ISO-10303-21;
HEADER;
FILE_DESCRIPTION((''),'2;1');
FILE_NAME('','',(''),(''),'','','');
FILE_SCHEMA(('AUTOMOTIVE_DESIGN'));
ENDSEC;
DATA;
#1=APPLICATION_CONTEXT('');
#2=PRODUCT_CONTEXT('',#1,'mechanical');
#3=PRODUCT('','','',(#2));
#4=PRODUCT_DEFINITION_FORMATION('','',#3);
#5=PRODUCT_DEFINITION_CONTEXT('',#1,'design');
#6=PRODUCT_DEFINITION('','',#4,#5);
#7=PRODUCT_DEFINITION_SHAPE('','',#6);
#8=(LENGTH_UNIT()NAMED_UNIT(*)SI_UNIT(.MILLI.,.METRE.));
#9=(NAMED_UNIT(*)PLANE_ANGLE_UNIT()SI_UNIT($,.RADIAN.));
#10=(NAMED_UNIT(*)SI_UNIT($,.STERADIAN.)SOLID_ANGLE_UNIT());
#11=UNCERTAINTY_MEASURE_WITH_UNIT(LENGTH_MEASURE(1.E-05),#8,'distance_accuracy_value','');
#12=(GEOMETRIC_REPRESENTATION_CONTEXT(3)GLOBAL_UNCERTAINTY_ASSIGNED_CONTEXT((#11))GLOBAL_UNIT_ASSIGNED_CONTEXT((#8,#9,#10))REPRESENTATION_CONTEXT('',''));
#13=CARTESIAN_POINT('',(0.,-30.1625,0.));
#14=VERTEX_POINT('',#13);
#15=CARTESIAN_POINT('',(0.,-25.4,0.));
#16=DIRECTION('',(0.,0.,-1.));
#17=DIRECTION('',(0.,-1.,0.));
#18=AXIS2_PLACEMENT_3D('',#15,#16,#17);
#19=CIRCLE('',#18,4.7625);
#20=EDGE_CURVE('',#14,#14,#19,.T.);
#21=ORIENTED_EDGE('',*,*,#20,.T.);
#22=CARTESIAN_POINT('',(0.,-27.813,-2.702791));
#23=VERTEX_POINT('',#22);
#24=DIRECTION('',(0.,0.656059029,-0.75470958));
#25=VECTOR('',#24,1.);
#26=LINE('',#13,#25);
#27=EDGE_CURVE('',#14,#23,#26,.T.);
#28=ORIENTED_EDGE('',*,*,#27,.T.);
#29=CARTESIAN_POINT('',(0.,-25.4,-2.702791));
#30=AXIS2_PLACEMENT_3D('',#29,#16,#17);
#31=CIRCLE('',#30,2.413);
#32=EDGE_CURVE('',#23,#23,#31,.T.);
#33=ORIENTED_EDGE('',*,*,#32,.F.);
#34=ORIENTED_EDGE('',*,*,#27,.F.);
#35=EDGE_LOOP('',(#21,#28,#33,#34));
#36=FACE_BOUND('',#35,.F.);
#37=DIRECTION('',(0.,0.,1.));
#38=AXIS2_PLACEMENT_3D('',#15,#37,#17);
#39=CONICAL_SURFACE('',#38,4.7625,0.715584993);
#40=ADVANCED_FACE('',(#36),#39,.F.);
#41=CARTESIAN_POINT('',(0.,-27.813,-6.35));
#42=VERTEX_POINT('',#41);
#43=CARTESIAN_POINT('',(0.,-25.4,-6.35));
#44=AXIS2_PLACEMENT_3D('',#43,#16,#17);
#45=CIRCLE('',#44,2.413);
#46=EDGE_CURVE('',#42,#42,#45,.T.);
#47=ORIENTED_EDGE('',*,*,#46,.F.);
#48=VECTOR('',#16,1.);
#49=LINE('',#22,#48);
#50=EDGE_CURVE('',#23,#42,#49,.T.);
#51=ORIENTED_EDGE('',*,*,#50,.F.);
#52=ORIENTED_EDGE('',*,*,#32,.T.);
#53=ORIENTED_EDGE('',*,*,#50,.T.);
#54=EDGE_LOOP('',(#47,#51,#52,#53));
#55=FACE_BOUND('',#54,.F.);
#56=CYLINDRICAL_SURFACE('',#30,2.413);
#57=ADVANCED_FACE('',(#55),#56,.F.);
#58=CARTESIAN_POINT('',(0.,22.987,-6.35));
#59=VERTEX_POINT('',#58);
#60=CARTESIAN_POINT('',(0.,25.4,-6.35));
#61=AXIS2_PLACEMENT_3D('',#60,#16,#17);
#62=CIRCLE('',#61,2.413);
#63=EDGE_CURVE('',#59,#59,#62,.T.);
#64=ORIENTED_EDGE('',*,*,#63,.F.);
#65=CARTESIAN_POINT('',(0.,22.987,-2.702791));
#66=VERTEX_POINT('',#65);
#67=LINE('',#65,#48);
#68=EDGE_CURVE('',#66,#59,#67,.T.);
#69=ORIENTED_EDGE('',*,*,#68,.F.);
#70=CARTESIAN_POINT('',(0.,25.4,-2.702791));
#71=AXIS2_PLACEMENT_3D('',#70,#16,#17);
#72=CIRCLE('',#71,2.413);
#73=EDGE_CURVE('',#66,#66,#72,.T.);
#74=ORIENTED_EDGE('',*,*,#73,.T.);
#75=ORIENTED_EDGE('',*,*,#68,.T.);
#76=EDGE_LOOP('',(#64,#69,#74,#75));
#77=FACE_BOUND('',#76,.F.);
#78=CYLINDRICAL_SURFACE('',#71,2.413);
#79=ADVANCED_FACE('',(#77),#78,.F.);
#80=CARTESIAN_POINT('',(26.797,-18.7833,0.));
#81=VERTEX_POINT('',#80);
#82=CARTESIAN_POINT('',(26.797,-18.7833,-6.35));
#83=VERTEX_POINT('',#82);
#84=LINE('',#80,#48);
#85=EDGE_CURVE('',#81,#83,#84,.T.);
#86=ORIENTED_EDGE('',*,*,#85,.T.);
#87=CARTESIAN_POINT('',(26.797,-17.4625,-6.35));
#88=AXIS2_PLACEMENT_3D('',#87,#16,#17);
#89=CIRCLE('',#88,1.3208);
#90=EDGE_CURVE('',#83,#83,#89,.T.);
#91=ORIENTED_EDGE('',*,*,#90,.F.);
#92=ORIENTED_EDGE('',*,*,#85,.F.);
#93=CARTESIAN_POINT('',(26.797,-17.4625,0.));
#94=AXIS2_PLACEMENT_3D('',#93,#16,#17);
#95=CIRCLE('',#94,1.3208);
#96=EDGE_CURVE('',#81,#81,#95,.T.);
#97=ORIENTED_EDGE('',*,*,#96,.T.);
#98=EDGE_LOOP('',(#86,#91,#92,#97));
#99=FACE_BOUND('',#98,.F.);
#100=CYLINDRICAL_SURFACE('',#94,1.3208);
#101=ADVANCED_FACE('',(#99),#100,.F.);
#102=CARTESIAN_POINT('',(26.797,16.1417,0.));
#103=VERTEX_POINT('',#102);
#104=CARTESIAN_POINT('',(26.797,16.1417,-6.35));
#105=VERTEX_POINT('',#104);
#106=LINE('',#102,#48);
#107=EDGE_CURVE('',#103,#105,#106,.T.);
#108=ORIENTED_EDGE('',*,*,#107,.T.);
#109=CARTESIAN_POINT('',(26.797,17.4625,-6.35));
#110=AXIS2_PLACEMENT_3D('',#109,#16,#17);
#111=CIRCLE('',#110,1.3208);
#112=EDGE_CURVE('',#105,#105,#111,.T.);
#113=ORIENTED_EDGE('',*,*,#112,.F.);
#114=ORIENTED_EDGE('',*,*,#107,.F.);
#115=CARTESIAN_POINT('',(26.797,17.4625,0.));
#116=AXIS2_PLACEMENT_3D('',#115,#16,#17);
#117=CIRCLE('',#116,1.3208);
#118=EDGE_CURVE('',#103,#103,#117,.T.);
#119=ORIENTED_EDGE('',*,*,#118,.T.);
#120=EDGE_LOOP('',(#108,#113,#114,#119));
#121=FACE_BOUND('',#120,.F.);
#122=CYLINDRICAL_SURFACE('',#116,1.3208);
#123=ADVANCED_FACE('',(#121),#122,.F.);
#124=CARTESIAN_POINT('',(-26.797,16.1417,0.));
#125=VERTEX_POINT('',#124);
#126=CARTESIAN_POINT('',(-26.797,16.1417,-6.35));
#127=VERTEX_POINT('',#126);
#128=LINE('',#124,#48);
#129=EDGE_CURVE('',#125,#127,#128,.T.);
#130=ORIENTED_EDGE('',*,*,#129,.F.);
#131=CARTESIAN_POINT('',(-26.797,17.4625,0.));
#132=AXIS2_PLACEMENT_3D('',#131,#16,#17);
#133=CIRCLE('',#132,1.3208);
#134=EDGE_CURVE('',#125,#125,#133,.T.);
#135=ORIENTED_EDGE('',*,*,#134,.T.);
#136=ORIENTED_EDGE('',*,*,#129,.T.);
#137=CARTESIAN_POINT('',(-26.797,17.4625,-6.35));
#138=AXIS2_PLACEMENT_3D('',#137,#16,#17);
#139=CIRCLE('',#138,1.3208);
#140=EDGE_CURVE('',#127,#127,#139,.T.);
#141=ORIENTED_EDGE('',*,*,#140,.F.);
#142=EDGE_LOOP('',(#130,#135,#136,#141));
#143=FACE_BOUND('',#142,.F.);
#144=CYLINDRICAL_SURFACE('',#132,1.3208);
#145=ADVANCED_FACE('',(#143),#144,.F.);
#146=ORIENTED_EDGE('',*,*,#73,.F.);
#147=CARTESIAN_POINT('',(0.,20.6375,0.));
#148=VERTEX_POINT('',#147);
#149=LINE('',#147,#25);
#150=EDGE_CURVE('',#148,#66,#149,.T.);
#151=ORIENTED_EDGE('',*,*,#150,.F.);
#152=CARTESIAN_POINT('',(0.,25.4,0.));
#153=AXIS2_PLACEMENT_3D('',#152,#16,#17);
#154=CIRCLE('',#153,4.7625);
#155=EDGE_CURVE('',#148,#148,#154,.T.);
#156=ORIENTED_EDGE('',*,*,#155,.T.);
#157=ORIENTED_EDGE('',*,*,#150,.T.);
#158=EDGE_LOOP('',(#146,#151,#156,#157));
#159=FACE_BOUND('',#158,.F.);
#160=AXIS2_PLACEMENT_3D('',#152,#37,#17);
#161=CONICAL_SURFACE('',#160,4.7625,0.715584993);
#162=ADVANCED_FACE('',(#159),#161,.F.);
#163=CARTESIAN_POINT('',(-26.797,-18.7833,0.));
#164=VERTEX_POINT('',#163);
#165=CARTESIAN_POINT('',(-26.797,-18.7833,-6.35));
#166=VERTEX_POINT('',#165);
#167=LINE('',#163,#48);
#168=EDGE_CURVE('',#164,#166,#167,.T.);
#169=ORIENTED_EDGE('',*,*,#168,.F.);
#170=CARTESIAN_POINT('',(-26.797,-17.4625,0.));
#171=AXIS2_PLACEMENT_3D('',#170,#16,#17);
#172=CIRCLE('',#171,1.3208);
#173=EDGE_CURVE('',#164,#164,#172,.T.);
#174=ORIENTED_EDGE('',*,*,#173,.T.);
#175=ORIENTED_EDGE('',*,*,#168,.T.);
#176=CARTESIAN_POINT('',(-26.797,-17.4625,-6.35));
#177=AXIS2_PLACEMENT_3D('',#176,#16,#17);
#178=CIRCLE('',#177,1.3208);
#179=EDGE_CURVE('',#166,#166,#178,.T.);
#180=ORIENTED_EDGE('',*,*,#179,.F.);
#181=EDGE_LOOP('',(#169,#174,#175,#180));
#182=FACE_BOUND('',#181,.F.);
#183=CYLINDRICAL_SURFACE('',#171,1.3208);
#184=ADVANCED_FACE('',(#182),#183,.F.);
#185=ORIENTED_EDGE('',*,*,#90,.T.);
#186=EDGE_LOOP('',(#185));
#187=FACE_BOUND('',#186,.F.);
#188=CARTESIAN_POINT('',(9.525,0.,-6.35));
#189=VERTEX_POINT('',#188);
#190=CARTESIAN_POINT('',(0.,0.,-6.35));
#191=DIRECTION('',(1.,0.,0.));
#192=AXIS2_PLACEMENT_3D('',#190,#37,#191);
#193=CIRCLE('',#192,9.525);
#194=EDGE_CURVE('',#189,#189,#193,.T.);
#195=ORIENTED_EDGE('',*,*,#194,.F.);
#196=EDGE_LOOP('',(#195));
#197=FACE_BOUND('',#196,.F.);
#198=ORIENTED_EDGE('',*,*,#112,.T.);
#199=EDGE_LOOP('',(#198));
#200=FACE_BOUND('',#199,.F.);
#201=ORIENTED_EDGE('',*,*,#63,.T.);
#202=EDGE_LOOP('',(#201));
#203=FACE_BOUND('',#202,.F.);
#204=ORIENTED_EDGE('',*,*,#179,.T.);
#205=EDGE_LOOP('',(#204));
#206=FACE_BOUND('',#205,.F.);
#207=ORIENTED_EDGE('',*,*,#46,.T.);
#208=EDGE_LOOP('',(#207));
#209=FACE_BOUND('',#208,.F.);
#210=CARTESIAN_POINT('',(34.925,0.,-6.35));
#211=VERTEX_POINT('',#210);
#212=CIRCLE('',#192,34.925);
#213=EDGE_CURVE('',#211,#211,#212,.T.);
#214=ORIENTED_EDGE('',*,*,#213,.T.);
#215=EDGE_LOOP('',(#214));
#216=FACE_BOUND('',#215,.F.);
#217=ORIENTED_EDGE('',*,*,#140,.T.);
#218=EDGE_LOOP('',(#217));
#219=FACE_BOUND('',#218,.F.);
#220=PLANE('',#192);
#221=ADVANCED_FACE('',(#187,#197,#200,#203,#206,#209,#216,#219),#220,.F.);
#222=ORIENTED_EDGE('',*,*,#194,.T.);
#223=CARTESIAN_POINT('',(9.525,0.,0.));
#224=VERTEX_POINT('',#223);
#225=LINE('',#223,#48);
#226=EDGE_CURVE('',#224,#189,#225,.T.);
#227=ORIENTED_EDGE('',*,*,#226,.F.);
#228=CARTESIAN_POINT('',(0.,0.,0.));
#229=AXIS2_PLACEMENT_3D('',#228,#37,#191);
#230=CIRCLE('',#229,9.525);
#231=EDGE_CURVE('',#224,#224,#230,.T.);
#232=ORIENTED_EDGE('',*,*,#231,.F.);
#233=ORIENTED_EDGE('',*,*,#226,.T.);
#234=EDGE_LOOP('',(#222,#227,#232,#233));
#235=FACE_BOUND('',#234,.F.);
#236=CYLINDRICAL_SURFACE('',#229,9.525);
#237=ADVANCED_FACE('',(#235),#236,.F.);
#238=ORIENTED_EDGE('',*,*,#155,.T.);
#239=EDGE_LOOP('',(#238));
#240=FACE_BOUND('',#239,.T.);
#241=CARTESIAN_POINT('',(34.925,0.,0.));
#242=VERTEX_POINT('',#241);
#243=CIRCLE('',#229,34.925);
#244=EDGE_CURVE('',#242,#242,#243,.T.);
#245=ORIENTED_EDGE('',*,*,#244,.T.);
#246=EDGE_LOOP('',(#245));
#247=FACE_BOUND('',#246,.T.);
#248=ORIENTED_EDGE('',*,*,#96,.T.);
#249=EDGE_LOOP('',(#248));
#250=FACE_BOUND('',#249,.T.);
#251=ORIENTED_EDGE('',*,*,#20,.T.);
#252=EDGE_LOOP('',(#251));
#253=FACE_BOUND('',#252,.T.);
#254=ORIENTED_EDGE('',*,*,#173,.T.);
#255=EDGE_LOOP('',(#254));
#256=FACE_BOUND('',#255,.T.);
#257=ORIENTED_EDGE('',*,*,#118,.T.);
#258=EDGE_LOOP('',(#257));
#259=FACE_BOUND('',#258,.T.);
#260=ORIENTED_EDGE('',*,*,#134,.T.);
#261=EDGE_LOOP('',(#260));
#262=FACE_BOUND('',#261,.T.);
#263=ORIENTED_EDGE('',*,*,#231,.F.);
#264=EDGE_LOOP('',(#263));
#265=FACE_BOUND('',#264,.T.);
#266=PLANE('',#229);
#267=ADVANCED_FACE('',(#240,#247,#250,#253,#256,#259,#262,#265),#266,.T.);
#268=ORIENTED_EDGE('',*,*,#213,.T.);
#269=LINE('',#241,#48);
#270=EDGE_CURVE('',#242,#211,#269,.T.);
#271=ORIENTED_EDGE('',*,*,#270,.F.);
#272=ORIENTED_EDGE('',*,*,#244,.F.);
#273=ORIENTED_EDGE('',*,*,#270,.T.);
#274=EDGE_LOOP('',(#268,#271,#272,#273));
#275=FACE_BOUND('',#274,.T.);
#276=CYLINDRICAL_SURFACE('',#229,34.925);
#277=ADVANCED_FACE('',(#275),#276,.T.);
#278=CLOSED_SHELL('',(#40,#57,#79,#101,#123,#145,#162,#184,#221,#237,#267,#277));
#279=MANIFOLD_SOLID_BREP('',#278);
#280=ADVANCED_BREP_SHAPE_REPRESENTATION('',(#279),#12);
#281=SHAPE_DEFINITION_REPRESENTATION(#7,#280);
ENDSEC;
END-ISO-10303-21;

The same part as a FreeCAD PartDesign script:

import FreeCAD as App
import Part
import Sketcher
Q = App.Units.Quantity

doc = App.newDocument("Part")
body = doc.addObject("PartDesign::Body", "Body")

# Sketch on XY plane
sketch1 = body.newObject("Sketcher::SketchObject", "Sketch")
sketch1.AttachmentSupport = (doc.getObject("XY_Plane"), [""])
sketch1.MapMode = "FlatFace"
sketch1.addGeometry(Part.Circle(App.Vector(0, 0, 0), App.Vector(0, 0, 1), 35), False)
sketch1.addGeometry(Part.Circle(App.Vector(0, 0, 0), App.Vector(0, 0, 1), 10), False)
sketch1.addConstraint(Sketcher.Constraint("Coincident", 0, 3, -1, 1))
sketch1.addConstraint(Sketcher.Constraint("Coincident", 1, 3, -1, 1))
sketch1.addConstraint(Sketcher.Constraint("Diameter", 0, Q("2.75 in")))
sketch1.addConstraint(Sketcher.Constraint("Diameter", 1, Q("0.75 in")))
pad1 = body.newObject("PartDesign::Pad", "Pad")
pad1.Profile = sketch1
pad1.Length = Q("0.25 in")
pad1.Reversed = True

# Sketch on XY plane
sketch2 = body.newObject("Sketcher::SketchObject", "Sketch001")
sketch2.AttachmentSupport = (doc.getObject("XY_Plane"), [""])
sketch2.MapMode = "FlatFace"
sketch2.addGeometry(Part.Circle(App.Vector(-26.8, -17.5, 0), App.Vector(0, 0, 1), 1.3), False)
sketch2.addGeometry(Part.Circle(App.Vector(-26.8, 17.5, 0), App.Vector(0, 0, 1), 1.3), False)
sketch2.addGeometry(Part.Circle(App.Vector(26.8, 17.5, 0), App.Vector(0, 0, 1), 1.3), False)
sketch2.addGeometry(Part.Circle(App.Vector(26.8, -17.5, 0), App.Vector(0, 0, 1), 1.3), False)
sketch2.addConstraint(Sketcher.Constraint("Equal", 0, 1))
sketch2.addConstraint(Sketcher.Constraint("Equal", 1, 2))
sketch2.addConstraint(Sketcher.Constraint("Equal", 2, 3))
sketch2.addConstraint(Sketcher.Constraint("Symmetric", 0, 3, 2, 3, -1, 1))
sketch2.addConstraint(Sketcher.Constraint("Symmetric", 1, 3, 3, 3, -1, 1))
sketch2.addConstraint(Sketcher.Constraint("Symmetric", 1, 3, 2, 3, -2))
sketch2.addConstraint(Sketcher.Constraint("Diameter", 0, Q("0.104 in")))
sketch2.addConstraint(Sketcher.Constraint("DistanceX", 1, 3, 2, 3, Q("2.11 in")))
sketch2.addConstraint(Sketcher.Constraint("DistanceY", 0, 3, -1, 1, Q("0.6875 in")))
doc.recompute()
hole = body.newObject("PartDesign::Hole", "Hole")
hole.Profile = sketch2
hole.ThreadType = "None"
hole.Diameter = Q("0.104 in")
hole.DepthType = "ThroughAll"

# Sketch on XY plane
sketch3 = body.newObject("Sketcher::SketchObject", "Sketch002")
sketch3.AttachmentSupport = (doc.getObject("XY_Plane"), [""])
sketch3.MapMode = "FlatFace"
sketch3.addGeometry(Part.Circle(App.Vector(0, 25.4, 0), App.Vector(0, 0, 1), 2.4), False)
sketch3.addGeometry(Part.Circle(App.Vector(0, -25.4, 0), App.Vector(0, 0, 1), 2.4), False)
sketch3.addConstraint(Sketcher.Constraint("Equal", 0, 1))
sketch3.addConstraint(Sketcher.Constraint("Symmetric", 0, 3, 1, 3, -1, 1))
sketch3.addConstraint(Sketcher.Constraint("PointOnObject", 0, 3, -2))
sketch3.addConstraint(Sketcher.Constraint("Diameter", 0, Q("0.19 in")))
sketch3.addConstraint(Sketcher.Constraint("DistanceY", -1, 1, 0, 3, Q("1 in")))
doc.recompute()
hole2 = body.newObject("PartDesign::Hole", "Hole001")
hole2.Profile = sketch3
hole2.ThreadType = "None"
hole2.Diameter = Q("0.19 in")
hole2.DepthType = "ThroughAll"
hole2.HoleCutType = "Countersink"
hole2.HoleCutDiameter = Q("0.375 in")
hole2.HoleCutCountersinkAngle = 82

doc.recompute()
